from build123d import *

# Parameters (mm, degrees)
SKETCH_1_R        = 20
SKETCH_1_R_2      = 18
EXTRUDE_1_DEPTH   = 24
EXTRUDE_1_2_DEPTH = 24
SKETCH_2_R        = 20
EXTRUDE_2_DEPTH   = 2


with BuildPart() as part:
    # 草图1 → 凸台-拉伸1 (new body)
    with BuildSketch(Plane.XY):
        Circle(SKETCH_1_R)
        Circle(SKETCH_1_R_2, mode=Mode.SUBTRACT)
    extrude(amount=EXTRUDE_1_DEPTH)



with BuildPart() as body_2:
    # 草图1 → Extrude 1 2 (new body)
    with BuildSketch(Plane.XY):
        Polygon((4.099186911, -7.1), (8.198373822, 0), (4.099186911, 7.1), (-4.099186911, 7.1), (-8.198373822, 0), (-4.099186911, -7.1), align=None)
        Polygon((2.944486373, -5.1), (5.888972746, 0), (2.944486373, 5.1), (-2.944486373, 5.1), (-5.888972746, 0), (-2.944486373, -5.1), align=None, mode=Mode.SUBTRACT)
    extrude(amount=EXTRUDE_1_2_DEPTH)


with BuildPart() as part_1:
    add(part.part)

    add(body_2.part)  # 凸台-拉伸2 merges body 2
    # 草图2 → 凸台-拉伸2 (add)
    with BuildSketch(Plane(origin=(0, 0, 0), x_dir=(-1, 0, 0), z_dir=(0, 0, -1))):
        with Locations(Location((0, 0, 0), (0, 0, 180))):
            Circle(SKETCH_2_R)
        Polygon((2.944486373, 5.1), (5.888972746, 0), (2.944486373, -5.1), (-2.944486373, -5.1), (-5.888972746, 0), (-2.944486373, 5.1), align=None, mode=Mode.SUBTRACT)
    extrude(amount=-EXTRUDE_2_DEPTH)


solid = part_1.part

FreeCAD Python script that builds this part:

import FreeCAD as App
import Part
import Sketcher
from FreeCAD import Vector
Q = App.Units.Quantity


def add_polygon(sketch, points):
    """Adds a closed chain of lines whose ends are joined by coincident constraints."""
    first, n = sketch.GeometryCount, len(points)
    for a, b in zip(points, points[1:] + points[:1]):
        sketch.addGeometry(Part.LineSegment(App.Vector(*a, 0), App.Vector(*b, 0)), False)
    for i in range(n):
        sketch.addConstraint(Sketcher.Constraint("Coincident", first + i, 2, first + (i + 1) % n, 1))

doc = App.newDocument("Part")
body = doc.addObject("PartDesign::Body", "Body")

sketch1 = doc.addObject("Sketcher::SketchObject", "Sketch")
body.addObject(sketch1)
sketch1.AttachmentSupport = (doc.XY_Plane, [""])
sketch1.MapMode = "FlatFace"
sketch1.addGeometry([
    Part.Circle(Vector(0, 0, 0), Vector(0, 0, 1), 20),
    Part.Circle(Vector(0, 0, 0), Vector(0, 0, 1), 18),
], False)
sketch1.addConstraint([
    Sketcher.Constraint("Coincident", 0, 3, -1, 1),
    Sketcher.Constraint("Coincident", 1, 3, -1, 1),
    Sketcher.Constraint("Diameter", 0, Q("40 mm")),
    Sketcher.Constraint("Diameter", 1, Q("36 mm")),
])
pad1 = doc.addObject("PartDesign::Pad", "Pad")
body.addObject(pad1)
pad1.Profile = sketch1
pad1.Length = 24
body2 = doc.addObject("PartDesign::Body", "Body001")

sketch2 = doc.addObject("Sketcher::SketchObject", "Sketch001")
body2.addObject(sketch2)
sketch2.AttachmentSupport = (doc.getObject("XY_Plane001"), [""])
sketch2.MapMode = "FlatFace"
add_polygon(sketch2, [(4, -7), (8, 0), (4, 7), (-4, 7), (-8, 0), (-4, -7)])
add_polygon(sketch2, [(6, 0), (3, -5), (-3, -5), (-6, 0), (-3, 5), (3, 5)])
sketch2.addConstraint([
    Sketcher.Constraint("Horizontal", 2),
    Sketcher.Constraint("Horizontal", 5),
    Sketcher.Constraint("Horizontal", 7),
    Sketcher.Constraint("Horizontal", 10),
    Sketcher.Constraint("Symmetric", 0, 2, 3, 2, -1, 1),
    Sketcher.Constraint("Symmetric", 1, 2, 4, 2, -1, 1),
    Sketcher.Constraint("Symmetric", 6, 2, 9, 2, -1, 1),
    Sketcher.Constraint("Symmetric", 8, 2, 11, 2, -1, 1),
    Sketcher.Constraint("PointOnObject", 0, 2, -1),
    Sketcher.Constraint("PointOnObject", 8, 2, -1),
    Sketcher.Constraint("Parallel", 0, 3),
    Sketcher.Constraint("Parallel", 3, 6),
    Sketcher.Constraint("Parallel", 4, 8),
    Sketcher.Constraint("Parallel", 8, 11),
    Sketcher.Constraint("Vertical", 2, 2, 4, 2),
    Sketcher.Constraint("Angle", 0, Q("60 deg")),
    Sketcher.Constraint("DistanceY", 5, 2, 6, 2, Q("2 mm")),
    Sketcher.Constraint("DistanceY", -1, 1, 1, 2, Q("7.1 mm")),
    Sketcher.Constraint("DistanceX", 6, 2, 5, 2, Q("1.154701 mm")),
    Sketcher.Constraint("DistanceX", 2, 2, 2, 1, Q("8.198374 mm")),
])
pad2 = doc.addObject("PartDesign::Pad", "Pad001")
body2.addObject(pad2)
pad2.Profile = sketch2
pad2.Length = 24
body.AllowCompound = True
doc.recompute()

boolean = doc.addObject("PartDesign::Boolean", "Boolean")
body.addObject(boolean)
boolean.Type = "Fuse"
boolean.addObjects([body2])

sketch3 = doc.addObject("Sketcher::SketchObject", "Sketch002")
body.addObject(sketch3)
sketch3.AttachmentSupport = (doc.XY_Plane, [""])
sketch3.MapMode = "FlatFace"
sketch3.addGeometry(Part.Circle(Vector(0, 0, 0), Vector(0, 0, 1), 20), False)
add_polygon(sketch3, [(3, 5), (-3, 5), (-6, 0), (-3, -5), (3, -5), (6, 0)])
sketch3.addConstraint([
    Sketcher.Constraint("Horizontal", 1),
    Sketcher.Constraint("Horizontal", 4),
    Sketcher.Constraint("Coincident", 0, 3, -1, 1),
    Sketcher.Constraint("Symmetric", 1, 2, 4, 2, -1, 1),
    Sketcher.Constraint("Symmetric", 2, 2, 5, 2, -1, 1),
    Sketcher.Constraint("PointOnObject", 2, 2, -1),
    Sketcher.Constraint("Parallel", 3, 6),
    Sketcher.Constraint("Vertical", 1, 2, 3, 2),
    Sketcher.Constraint("Diameter", 0, Q("40 mm")),
    Sketcher.Constraint("Angle", 2, Q("-120 deg")),
    Sketcher.Constraint("DistanceY", -1, 1, 1, 2, Q("5.1 mm")),
    Sketcher.Constraint("DistanceX", 1, 2, 1, 1, Q("5.888973 mm")),
])
pad3 = doc.addObject("PartDesign::Pad", "Pad002")
body.addObject(pad3)
pad3.Profile = sketch3
pad3.Length = 2

doc.recompute()
